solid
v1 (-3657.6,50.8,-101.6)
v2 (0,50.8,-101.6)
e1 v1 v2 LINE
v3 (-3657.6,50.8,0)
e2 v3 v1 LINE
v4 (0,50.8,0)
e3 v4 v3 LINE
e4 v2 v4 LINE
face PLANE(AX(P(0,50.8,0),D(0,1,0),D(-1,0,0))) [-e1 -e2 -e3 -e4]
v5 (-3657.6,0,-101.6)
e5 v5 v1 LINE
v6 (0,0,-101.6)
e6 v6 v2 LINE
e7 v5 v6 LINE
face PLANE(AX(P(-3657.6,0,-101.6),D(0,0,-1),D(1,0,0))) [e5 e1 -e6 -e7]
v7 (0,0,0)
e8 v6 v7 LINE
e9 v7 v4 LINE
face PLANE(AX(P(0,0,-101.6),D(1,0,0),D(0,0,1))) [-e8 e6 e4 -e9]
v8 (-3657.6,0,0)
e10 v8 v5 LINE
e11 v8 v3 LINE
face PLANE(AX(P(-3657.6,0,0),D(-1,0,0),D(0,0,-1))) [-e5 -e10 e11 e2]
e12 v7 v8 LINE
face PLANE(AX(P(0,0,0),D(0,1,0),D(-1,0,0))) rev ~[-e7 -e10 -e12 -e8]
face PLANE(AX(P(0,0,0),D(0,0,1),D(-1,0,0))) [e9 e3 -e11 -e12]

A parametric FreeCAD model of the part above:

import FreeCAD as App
import Part
import Sketcher
from FreeCAD import Vector
Q = App.Units.Quantity

doc = App.newDocument("Part")
params = doc.addObject("Spreadsheet::Sheet", "Params")
for row, (alias, value) in enumerate([
    ("sketch1_width", "144 in"),
    ("sketch1_height", "4 in"),
    ("pad1_length", "2 in"),
], start=1):
    params.set(f"A{row}", alias)
    params.set(f"B{row}", "=" + value)
    params.setAlias(f"B{row}", alias)

body = doc.addObject("PartDesign::Body", "Body")

sketch1 = body.newObject("Sketcher::SketchObject", "Sketch")
sketch1.AttachmentSupport = (doc.getObject("XZ_Plane"), [""])
sketch1.MapMode = "FlatFace"
sketch1.addGeometry([
    Part.LineSegment(Vector(-3657.6, 0, 0), Vector(0, 0, 0)),
    Part.LineSegment(Vector(0, 0, 0), Vector(0, -101.6, 0)),
    Part.LineSegment(Vector(0, -101.6, 0), Vector(-3657.6, -101.6, 0)),
    Part.LineSegment(Vector(-3657.6, -101.6, 0), Vector(-3657.6, 0, 0)),
], False)
sketch1.addConstraint([
    Sketcher.Constraint("Coincident", 0, 2, 1, 1),
    Sketcher.Constraint("Coincident", 1, 2, 2, 1),
    Sketcher.Constraint("Coincident", 2, 2, 3, 1),
    Sketcher.Constraint("Coincident", 3, 2, 0, 1),
    Sketcher.Constraint("Horizontal", 0),
    Sketcher.Constraint("Vertical", 1),
    Sketcher.Constraint("Horizontal", 2),
    Sketcher.Constraint("Vertical", 3),
    Sketcher.Constraint("Coincident", 0, 2, -1, 1),
    Sketcher.Constraint("DistanceX", 0, 1, 0, 2, Q("144 in")),
    Sketcher.Constraint("DistanceY", 1, 2, 1, 1, Q("4 in")),
])
sketch1.setExpression("Constraints[9]", "Params.sketch1_width")
sketch1.setExpression("Constraints[10]", "Params.sketch1_height")
pad1 = body.newObject("PartDesign::Pad", "Pad")
pad1.Profile = sketch1
pad1.setExpression("Length", "Params.pad1_length")
pad1.Reversed = True

doc.recompute()
